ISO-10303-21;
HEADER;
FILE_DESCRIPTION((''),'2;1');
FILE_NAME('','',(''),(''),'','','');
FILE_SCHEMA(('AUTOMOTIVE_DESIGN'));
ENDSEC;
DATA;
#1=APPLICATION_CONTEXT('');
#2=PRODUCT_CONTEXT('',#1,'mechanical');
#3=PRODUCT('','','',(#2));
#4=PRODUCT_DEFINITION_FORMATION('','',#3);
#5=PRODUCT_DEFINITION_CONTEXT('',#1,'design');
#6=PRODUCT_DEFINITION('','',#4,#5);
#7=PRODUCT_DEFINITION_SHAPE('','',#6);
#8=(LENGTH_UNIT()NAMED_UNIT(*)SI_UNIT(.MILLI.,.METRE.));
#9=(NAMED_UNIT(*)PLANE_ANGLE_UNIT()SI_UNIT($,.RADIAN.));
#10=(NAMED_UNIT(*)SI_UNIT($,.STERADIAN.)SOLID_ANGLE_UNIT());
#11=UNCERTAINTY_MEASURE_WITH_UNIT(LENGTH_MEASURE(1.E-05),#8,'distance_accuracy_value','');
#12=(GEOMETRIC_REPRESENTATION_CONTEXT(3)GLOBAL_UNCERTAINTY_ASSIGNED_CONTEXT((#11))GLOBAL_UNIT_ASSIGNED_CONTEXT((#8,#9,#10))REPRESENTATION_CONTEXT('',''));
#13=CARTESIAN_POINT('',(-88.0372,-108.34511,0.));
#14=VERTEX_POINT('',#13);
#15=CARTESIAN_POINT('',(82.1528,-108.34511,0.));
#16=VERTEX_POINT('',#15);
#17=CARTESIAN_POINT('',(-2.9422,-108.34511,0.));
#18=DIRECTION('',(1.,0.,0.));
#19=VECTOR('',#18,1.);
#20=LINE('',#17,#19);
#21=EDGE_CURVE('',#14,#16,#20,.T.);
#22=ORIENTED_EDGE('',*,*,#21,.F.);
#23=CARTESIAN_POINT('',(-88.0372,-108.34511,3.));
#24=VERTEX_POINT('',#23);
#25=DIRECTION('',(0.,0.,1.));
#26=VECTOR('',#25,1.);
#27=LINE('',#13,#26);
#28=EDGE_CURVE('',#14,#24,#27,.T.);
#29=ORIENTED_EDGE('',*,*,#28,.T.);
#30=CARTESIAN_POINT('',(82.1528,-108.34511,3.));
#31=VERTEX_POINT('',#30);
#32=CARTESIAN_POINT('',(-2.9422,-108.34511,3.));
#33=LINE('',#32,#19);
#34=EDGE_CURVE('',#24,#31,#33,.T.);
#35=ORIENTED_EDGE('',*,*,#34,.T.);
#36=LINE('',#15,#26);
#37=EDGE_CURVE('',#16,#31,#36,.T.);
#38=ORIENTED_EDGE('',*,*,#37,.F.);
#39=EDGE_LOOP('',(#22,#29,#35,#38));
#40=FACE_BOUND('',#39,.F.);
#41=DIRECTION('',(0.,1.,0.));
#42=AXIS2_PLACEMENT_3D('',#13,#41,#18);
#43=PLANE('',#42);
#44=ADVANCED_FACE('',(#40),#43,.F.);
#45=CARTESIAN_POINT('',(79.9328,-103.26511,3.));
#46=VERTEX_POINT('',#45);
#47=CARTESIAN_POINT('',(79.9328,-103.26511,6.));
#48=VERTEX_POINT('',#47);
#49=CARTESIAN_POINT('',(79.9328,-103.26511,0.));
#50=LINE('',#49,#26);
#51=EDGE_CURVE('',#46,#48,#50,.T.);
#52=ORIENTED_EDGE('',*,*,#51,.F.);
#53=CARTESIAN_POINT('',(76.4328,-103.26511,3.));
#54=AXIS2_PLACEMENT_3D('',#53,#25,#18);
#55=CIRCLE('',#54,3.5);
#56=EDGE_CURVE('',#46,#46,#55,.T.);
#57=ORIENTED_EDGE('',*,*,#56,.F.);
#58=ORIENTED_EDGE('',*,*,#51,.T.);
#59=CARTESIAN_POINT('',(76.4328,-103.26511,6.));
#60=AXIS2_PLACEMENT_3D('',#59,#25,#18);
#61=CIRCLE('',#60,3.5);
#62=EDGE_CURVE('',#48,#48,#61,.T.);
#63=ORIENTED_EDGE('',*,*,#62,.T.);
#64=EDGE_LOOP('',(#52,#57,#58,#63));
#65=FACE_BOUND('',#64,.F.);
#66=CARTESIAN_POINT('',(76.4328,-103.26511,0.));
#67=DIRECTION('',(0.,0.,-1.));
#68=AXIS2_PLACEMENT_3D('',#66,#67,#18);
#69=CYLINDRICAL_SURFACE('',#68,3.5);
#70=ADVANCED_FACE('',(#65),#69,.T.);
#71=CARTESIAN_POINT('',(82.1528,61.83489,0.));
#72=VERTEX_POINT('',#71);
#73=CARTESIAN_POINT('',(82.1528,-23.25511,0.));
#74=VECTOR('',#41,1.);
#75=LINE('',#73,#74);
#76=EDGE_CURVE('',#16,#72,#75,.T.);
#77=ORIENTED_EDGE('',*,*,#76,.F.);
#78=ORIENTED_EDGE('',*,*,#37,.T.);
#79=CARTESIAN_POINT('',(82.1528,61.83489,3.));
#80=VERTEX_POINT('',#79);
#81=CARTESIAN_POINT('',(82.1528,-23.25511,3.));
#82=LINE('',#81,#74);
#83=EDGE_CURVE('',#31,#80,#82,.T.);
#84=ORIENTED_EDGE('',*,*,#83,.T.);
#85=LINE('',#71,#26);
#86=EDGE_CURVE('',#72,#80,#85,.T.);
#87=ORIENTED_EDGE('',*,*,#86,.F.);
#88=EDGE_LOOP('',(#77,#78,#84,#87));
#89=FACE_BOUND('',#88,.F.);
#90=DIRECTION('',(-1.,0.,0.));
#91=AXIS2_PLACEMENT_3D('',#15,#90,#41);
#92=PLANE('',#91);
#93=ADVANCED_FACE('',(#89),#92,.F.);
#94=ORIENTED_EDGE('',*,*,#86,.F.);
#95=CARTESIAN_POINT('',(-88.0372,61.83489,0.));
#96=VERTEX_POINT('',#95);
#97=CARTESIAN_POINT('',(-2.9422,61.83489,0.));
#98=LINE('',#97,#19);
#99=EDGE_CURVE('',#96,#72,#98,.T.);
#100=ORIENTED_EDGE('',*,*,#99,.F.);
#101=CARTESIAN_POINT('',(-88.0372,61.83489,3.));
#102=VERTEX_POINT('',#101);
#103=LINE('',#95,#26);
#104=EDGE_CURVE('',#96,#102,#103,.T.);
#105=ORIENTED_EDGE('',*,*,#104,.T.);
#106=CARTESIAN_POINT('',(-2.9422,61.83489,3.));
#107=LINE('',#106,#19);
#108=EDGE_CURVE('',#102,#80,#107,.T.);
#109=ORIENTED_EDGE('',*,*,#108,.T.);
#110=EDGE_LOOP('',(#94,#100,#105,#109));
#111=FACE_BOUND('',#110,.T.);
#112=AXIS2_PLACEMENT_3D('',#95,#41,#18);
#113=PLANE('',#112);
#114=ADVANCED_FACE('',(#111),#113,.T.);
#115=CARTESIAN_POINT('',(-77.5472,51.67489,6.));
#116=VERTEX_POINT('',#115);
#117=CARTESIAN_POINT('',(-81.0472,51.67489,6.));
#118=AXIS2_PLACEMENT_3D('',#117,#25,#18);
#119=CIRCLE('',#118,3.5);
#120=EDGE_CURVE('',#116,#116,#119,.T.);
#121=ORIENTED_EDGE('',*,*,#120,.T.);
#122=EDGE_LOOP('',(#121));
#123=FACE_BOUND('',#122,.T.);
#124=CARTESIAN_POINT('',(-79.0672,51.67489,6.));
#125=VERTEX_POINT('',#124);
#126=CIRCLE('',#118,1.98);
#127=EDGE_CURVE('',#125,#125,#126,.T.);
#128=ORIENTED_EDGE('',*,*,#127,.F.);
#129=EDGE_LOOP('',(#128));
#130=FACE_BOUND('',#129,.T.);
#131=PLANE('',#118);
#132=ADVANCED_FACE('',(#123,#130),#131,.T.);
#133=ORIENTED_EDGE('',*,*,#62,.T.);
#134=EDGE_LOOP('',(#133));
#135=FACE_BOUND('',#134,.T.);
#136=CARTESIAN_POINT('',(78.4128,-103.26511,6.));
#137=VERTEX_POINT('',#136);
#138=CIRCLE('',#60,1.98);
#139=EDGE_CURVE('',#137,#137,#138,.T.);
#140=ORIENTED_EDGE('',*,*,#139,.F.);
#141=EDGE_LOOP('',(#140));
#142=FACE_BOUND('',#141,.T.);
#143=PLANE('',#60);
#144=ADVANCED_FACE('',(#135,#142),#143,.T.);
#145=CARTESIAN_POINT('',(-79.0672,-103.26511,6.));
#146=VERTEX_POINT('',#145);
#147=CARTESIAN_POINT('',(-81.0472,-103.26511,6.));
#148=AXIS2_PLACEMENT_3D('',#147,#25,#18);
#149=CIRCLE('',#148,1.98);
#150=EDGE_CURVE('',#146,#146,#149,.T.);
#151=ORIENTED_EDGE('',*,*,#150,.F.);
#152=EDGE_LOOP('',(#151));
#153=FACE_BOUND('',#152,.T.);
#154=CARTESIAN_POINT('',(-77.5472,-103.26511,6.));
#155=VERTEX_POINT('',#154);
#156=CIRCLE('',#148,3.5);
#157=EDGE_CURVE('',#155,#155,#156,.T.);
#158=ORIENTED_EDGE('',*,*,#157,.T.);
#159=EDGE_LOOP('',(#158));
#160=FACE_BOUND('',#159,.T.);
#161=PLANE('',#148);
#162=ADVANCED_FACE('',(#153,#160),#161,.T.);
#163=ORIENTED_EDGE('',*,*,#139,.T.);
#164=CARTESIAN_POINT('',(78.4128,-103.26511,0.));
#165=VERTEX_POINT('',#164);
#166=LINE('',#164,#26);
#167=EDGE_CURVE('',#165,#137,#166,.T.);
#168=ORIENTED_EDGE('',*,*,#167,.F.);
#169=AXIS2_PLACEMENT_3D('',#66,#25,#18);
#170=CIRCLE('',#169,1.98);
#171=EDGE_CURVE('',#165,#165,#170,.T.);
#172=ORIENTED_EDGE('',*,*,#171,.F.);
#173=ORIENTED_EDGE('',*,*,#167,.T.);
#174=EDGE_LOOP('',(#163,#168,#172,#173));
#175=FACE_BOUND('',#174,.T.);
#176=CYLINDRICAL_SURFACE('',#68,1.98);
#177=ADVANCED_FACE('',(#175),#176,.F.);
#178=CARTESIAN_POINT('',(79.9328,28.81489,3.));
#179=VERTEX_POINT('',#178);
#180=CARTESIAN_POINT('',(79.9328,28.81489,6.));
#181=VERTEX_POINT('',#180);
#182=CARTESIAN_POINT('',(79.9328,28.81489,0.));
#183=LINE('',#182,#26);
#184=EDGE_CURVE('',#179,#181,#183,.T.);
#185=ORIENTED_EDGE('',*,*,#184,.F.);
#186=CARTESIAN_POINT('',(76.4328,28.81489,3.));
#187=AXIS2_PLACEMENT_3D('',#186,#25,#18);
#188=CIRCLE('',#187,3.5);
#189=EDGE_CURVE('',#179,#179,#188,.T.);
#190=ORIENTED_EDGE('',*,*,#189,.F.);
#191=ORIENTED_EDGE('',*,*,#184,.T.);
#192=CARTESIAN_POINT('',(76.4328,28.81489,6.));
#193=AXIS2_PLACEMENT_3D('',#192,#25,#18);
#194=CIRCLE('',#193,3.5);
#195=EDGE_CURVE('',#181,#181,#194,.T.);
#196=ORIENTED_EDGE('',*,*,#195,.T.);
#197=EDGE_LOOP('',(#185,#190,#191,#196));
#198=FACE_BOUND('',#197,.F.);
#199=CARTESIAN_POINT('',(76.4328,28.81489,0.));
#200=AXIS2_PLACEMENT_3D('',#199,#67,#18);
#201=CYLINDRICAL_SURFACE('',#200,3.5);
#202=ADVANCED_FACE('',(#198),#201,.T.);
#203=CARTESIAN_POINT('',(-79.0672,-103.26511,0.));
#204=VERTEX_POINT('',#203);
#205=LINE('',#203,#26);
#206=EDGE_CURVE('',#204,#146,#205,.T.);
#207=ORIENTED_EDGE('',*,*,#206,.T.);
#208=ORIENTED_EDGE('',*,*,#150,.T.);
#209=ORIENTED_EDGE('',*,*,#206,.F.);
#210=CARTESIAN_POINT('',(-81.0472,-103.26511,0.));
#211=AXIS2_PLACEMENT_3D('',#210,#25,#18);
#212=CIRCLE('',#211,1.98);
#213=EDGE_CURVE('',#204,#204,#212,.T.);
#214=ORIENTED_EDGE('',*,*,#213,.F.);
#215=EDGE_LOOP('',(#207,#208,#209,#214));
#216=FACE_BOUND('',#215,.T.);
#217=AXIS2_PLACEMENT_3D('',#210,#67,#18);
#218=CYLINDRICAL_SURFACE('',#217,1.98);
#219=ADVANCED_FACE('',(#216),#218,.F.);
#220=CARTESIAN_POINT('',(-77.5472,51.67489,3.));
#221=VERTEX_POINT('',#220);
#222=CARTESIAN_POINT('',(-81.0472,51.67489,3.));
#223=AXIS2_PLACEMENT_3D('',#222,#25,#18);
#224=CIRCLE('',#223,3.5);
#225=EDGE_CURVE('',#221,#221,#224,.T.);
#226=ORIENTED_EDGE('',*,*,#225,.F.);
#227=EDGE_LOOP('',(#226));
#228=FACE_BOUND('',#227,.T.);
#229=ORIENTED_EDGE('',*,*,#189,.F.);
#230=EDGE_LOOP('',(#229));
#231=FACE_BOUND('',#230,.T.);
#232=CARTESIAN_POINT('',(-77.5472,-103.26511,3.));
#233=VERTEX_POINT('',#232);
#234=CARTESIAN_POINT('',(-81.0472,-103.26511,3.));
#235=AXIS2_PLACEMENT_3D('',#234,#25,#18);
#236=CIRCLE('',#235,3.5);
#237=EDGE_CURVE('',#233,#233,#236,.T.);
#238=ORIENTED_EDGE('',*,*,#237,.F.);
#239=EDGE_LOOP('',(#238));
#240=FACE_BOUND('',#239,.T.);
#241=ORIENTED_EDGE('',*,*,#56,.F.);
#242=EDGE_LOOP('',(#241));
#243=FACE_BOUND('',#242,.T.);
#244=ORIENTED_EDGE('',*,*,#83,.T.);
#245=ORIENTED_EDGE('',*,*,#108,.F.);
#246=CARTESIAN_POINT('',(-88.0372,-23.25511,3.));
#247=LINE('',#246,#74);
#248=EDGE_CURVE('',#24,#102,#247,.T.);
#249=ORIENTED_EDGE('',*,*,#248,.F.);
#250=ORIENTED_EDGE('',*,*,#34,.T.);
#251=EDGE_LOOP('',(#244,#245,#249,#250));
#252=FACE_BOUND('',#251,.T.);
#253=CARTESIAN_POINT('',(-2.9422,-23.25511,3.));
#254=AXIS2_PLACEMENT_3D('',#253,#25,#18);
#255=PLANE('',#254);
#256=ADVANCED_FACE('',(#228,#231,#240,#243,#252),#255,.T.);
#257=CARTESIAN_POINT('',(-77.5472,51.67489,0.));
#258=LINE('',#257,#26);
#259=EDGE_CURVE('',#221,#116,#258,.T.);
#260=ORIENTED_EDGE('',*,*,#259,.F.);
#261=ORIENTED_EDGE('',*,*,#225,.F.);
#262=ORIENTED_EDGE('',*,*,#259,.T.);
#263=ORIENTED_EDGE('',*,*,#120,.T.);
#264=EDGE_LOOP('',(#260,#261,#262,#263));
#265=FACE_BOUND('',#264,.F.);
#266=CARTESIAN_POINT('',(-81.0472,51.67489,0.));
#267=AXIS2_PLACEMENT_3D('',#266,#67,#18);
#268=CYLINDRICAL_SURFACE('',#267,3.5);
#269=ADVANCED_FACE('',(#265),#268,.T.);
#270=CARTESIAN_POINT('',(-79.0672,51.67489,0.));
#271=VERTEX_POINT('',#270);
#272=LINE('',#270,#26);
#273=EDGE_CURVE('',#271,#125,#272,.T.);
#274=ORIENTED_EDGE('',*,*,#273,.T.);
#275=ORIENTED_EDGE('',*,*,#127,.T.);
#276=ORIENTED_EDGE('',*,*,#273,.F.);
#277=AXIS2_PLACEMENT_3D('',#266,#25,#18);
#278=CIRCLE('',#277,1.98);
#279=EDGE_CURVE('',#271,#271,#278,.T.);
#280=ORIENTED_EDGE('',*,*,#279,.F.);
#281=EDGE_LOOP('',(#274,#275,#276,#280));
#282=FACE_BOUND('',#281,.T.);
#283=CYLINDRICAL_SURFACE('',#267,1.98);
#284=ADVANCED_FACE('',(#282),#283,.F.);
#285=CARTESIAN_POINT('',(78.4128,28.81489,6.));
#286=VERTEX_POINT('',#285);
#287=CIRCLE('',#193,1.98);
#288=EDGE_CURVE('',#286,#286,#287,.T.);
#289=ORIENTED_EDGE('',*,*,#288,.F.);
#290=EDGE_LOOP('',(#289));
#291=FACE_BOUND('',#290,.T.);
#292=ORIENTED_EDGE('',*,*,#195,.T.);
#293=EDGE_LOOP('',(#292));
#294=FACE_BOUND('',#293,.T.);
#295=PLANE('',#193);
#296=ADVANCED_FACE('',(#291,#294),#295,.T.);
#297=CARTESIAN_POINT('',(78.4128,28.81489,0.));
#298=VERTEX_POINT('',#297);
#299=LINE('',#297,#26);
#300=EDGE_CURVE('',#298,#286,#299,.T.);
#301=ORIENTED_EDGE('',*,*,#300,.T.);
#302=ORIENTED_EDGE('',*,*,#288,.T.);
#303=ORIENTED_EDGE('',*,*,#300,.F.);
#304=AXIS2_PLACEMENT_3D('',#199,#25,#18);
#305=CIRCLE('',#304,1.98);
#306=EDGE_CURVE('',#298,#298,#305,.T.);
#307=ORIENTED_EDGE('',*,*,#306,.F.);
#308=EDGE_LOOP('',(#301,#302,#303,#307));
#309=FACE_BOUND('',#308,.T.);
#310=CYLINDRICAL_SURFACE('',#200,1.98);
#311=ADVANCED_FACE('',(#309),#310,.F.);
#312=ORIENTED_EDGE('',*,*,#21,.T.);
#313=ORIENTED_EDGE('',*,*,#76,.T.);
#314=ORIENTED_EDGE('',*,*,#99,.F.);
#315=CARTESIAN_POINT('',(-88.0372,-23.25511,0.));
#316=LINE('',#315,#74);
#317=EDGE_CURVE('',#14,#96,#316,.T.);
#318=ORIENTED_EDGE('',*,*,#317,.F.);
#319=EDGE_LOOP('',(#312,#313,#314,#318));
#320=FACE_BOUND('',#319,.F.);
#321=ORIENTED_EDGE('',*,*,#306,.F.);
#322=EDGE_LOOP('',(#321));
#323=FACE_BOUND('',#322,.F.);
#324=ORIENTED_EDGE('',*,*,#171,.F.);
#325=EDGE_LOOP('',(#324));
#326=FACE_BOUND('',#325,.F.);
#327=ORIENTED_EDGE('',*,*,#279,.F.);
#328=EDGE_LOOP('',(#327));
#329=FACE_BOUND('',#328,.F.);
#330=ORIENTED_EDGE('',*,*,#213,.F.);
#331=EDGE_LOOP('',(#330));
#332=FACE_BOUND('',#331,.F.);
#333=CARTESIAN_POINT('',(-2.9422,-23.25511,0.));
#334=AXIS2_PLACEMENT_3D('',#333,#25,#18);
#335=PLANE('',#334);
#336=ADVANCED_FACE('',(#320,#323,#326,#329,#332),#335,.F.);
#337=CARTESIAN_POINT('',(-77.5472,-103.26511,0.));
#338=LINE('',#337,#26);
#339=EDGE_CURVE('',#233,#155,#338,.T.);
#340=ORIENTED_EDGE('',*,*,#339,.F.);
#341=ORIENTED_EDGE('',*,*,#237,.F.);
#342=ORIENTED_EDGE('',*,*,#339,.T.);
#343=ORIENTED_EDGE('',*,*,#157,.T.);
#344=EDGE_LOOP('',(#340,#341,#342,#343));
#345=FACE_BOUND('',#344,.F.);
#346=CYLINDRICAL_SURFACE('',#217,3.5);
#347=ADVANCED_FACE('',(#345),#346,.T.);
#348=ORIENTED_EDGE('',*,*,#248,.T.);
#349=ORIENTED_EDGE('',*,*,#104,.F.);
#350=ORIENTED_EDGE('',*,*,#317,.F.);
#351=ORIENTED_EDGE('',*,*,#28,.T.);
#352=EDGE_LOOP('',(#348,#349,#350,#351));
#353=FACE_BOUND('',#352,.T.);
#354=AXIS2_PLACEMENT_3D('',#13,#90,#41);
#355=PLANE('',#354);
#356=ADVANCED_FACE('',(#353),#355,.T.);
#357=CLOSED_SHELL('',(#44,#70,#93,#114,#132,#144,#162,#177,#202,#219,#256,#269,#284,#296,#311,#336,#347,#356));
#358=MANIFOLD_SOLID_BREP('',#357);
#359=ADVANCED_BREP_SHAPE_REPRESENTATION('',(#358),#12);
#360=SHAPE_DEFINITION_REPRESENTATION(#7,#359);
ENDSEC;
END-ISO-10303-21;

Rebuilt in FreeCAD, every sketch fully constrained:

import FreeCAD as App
import Part
import Sketcher
from FreeCAD import Vector
Q = App.Units.Quantity


def add_polygon(sketch, points):
    """Adds a closed chain of lines whose ends are joined by coincident constraints."""
    first, n = sketch.GeometryCount, len(points)
    for a, b in zip(points, points[1:] + points[:1]):
        sketch.addGeometry(Part.LineSegment(App.Vector(*a, 0), App.Vector(*b, 0)), False)
    for i in range(n):
        sketch.addConstraint(Sketcher.Constraint("Coincident", first + i, 2, first + (i + 1) % n, 1))

doc = App.newDocument("Part")
body = doc.addObject("PartDesign::Body", "Body")

# Sketch on XY plane
sketch1 = body.newObject("Sketcher::SketchObject", "Sketch")
sketch1.AttachmentSupport = (doc.getObject("XY_Plane"), [""])
sketch1.MapMode = "FlatFace"
add_polygon(sketch1, [(-88, 61.8), (-88, -108.3), (82.2, -108.3), (82.2, 61.8)])  # lines 0-3
sketch1.addGeometry(Part.Circle(Vector(-81, -103.3, 0), Vector(0, 0, 1), 3.5), False)  # 4
sketch1.addGeometry(Part.Circle(Vector(76.4, -103.3, 0), Vector(0, 0, 1), 3.5), False)  # 5
sketch1.addGeometry(Part.Circle(Vector(-81, 51.7, 0), Vector(0, 0, 1), 3.5), False)  # 6
sketch1.addGeometry(Part.Circle(Vector(76.4, 28.8, 0), Vector(0, 0, 1), 3.5), False)  # 7
sketch1.addConstraint(Sketcher.Constraint("Vertical", 0))
sketch1.addConstraint(Sketcher.Constraint("Horizontal", 1))
sketch1.addConstraint(Sketcher.Constraint("Vertical", 2))
sketch1.addConstraint(Sketcher.Constraint("Horizontal", 3))
sketch1.addConstraint(Sketcher.Constraint("Equal", 4, 5))
sketch1.addConstraint(Sketcher.Constraint("Equal", 5, 6))
sketch1.addConstraint(Sketcher.Constraint("Equal", 6, 7))
sketch1.addConstraint(Sketcher.Constraint("Horizontal", 4, 3, 5, 3))
sketch1.addConstraint(Sketcher.Constraint("Vertical", 4, 3, 6, 3))
sketch1.addConstraint(Sketcher.Constraint("Vertical", 5, 3, 7, 3))
sketch1.addConstraint(Sketcher.Constraint("Diameter", 4, Q("7 mm")))
sketch1.addConstraint(Sketcher.Constraint("DistanceX", 1, 1, 1, 2, Q("170.19 mm")))
sketch1.addConstraint(Sketcher.Constraint("DistanceY", 0, 2, 0, 1, Q("170.18 mm")))
sketch1.addConstraint(Sketcher.Constraint("DistanceX", 4, 3, 1, 2, Q("163.2 mm")))
sketch1.addConstraint(Sketcher.Constraint("DistanceY", 5, 3, 2, 2, Q("165.1 mm")))
sketch1.addConstraint(Sketcher.Constraint("DistanceX", 4, 3, 5, 3, Q("157.48 mm")))
sketch1.addConstraint(Sketcher.Constraint("DistanceY", 4, 3, 6, 3, Q("154.94 mm")))
sketch1.addConstraint(Sketcher.Constraint("DistanceY", 5, 3, 7, 3, Q("132.08 mm")))
sketch1.addConstraint(Sketcher.Constraint("DistanceX", 4, 3, -1, 1, Q("81.0472 mm")))
sketch1.addConstraint(Sketcher.Constraint("DistanceY", 4, 3, -1, 1, Q("103.26511 mm")))
pad1 = body.newObject("PartDesign::Pad", "Pad")
pad1.Profile = sketch1
pad1.Length = 3

# Sketch on XY plane
sketch2 = body.newObject("Sketcher::SketchObject", "Sketch001")
sketch2.AttachmentSupport = (doc.getObject("XY_Plane"), [""])
sketch2.MapMode = "FlatFace"
sketch2.addGeometry(Part.Circle(Vector(76.4, -103.3, 0), Vector(0, 0, 1), 3.5), False)
sketch2.addGeometry(Part.Circle(Vector(76.4, -103.3, 0), Vector(0, 0, 1), 2), False)
sketch2.addGeometry(Part.Circle(Vector(-81, -103.3, 0), Vector(0, 0, 1), 3.5), False)
sketch2.addGeometry(Part.Circle(Vector(-81, -103.3, 0), Vector(0, 0, 1), 2), False)
sketch2.addGeometry(Part.Circle(Vector(-81, 51.7, 0), Vector(0, 0, 1), 3.5), False)
sketch2.addGeometry(Part.Circle(Vector(-81, 51.7, 0), Vector(0, 0, 1), 2), False)
sketch2.addGeometry(Part.Circle(Vector(76.4, 28.8, 0), Vector(0, 0, 1), 3.5), False)
sketch2.addGeometry(Part.Circle(Vector(76.4, 28.8, 0), Vector(0, 0, 1), 2), False)
sketch2.addConstraint(Sketcher.Constraint("Coincident", 1, 3, 0, 3))
sketch2.addConstraint(Sketcher.Constraint("Coincident", 3, 3, 2, 3))
sketch2.addConstraint(Sketcher.Constraint("Coincident", 5, 3, 4, 3))
sketch2.addConstraint(Sketcher.Constraint("Coincident", 7, 3, 6, 3))
sketch2.addConstraint(Sketcher.Constraint("Equal", 0, 2))
sketch2.addConstraint(Sketcher.Constraint("Equal", 1, 3))
sketch2.addConstraint(Sketcher.Constraint("Equal", 2, 4))
sketch2.addConstraint(Sketcher.Constraint("Equal", 3, 5))
sketch2.addConstraint(Sketcher.Constraint("Equal", 4, 6))
sketch2.addConstraint(Sketcher.Constraint("Equal", 5, 7))
sketch2.addConstraint(Sketcher.Constraint("Horizontal", 1, 3, 2, 3))
sketch2.addConstraint(Sketcher.Constraint("Vertical", 3, 3, 4, 3))
sketch2.addConstraint(Sketcher.Constraint("Vertical", 1, 3, 6, 3))
sketch2.addConstraint(Sketcher.Constraint("Diameter", 0, Q("7 mm")))
sketch2.addConstraint(Sketcher.Constraint("Diameter", 1, Q("3.96 mm")))
sketch2.addConstraint(Sketcher.Constraint("DistanceX", 2, 3, 0, 3, Q("157.48 mm")))
sketch2.addConstraint(Sketcher.Constraint("DistanceY", 2, 3, 4, 3, Q("154.94 mm")))
sketch2.addConstraint(Sketcher.Constraint("DistanceY", 0, 3, 6, 3, Q("132.08 mm")))
sketch2.addConstraint(Sketcher.Constraint("DistanceX", -1, 1, 0, 3, Q("76.4328 mm")))
sketch2.addConstraint(Sketcher.Constraint("DistanceY", 0, 3, -1, 1, Q("103.26511 mm")))
pad2 = body.newObject("PartDesign::Pad", "Pad001")
pad2.Profile = sketch2
pad2.Length = 6

doc.recompute()
